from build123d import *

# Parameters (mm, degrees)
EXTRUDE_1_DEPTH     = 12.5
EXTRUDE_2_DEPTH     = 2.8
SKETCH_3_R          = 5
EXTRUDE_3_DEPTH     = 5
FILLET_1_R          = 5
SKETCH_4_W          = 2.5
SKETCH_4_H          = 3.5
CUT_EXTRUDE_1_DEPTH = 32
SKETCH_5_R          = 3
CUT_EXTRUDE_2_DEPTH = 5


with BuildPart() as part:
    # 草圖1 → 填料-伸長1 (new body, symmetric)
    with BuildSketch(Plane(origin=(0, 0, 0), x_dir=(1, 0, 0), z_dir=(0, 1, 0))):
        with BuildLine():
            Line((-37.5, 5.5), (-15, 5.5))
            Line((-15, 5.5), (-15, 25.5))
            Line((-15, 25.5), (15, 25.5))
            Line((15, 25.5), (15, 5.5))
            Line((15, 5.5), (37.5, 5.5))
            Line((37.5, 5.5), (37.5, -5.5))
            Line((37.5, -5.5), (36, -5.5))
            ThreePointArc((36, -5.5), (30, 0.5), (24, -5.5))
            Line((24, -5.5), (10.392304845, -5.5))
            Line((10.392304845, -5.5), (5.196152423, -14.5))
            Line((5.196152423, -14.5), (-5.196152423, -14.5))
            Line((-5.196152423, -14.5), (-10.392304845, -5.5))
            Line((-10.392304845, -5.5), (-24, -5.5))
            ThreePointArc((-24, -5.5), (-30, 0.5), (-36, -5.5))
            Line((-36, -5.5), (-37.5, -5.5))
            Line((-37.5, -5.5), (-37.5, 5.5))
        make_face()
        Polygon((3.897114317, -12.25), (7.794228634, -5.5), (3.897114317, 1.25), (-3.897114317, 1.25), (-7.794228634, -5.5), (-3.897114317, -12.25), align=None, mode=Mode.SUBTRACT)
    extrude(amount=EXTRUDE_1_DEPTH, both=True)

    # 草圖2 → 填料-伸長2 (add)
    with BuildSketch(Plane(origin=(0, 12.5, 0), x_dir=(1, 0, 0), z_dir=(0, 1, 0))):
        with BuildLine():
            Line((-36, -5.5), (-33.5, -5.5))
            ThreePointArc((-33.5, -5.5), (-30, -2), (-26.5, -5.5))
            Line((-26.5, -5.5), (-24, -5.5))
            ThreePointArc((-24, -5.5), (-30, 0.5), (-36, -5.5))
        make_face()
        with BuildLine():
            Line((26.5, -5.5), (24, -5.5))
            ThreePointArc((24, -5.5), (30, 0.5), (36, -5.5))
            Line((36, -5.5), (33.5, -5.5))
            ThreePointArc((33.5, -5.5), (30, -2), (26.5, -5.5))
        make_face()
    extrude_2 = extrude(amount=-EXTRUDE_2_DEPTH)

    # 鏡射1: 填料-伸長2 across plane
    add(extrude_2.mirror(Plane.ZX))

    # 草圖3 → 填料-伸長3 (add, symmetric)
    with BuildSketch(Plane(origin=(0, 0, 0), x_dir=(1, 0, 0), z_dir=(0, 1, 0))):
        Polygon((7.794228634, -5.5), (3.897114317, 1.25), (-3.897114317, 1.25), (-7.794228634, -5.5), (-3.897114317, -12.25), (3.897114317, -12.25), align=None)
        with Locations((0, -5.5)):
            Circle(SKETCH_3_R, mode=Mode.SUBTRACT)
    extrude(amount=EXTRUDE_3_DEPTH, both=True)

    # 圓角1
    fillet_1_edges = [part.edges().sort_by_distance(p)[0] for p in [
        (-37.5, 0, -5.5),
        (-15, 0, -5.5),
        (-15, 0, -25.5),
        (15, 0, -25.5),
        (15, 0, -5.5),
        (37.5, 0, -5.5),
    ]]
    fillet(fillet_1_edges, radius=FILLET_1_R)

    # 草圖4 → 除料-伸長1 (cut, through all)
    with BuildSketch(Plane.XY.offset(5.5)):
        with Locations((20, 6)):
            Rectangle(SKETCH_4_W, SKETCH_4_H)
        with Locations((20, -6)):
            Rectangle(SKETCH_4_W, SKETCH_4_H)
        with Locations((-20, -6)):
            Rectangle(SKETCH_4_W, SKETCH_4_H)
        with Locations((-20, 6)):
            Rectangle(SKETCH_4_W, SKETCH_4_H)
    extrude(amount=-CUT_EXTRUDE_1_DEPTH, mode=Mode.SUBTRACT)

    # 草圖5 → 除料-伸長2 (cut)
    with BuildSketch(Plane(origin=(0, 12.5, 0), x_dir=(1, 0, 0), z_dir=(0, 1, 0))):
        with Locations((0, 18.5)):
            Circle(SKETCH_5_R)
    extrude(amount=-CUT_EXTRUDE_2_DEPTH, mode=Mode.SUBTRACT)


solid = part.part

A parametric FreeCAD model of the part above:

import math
import FreeCAD as App
import Part
import Sketcher
from FreeCAD import Vector
Q = App.Units.Quantity


def edges_at(feature, points):
    """Names of the edges that pass closest to the given points."""
    edges = feature.Shape.Edges
    near = lambda p: min(range(len(edges)), key=lambda i: edges[i].distToShape(Part.Vertex(*p))[0])
    return sorted({f"Edge{near(p) + 1}" for p in points})


def add_polygon(sketch, points):
    """Adds a closed chain of lines whose ends are joined by coincident constraints."""
    first, n = sketch.GeometryCount, len(points)
    for a, b in zip(points, points[1:] + points[:1]):
        sketch.addGeometry(Part.LineSegment(App.Vector(*a, 0), App.Vector(*b, 0)), False)
    for i in range(n):
        sketch.addConstraint(Sketcher.Constraint("Coincident", first + i, 2, first + (i + 1) % n, 1))

doc = App.newDocument("Part")
body = doc.addObject("PartDesign::Body", "Body")

# Sketch on XZ plane
sketch1 = body.newObject("Sketcher::SketchObject", "Sketch")
sketch1.AttachmentSupport = (doc.getObject("XZ_Plane"), [""])
sketch1.MapMode = "FlatFace"
sketch1.addGeometry(Part.LineSegment(Vector(-15, -5.5, 0), Vector(-37.5, -5.5, 0)), False)  # 0
sketch1.addGeometry(Part.LineSegment(Vector(-37.5, -5.5, 0), Vector(-37.5, 5.5, 0)), False)  # 1
sketch1.addGeometry(Part.LineSegment(Vector(-37.5, 5.5, 0), Vector(-36, 5.5, 0)), False)  # 2
sketch1.addGeometry(Part.ArcOfCircle(Part.Circle(Vector(-30, 5.5, 0), Vector(0, 0, 1), 6), math.radians(180), math.radians(360)), False)  # 3
sketch1.addGeometry(Part.LineSegment(Vector(-24, 5.5, 0), Vector(-10.4, 5.5, 0)), False)  # 4
sketch1.addGeometry(Part.LineSegment(Vector(-10.4, 5.5, 0), Vector(-5.2, 14.5, 0)), False)  # 5
sketch1.addGeometry(Part.LineSegment(Vector(-5.2, 14.5, 0), Vector(5.2, 14.5, 0)), False)  # 6
sketch1.addGeometry(Part.LineSegment(Vector(5.2, 14.5, 0), Vector(10.4, 5.5, 0)), False)  # 7
sketch1.addGeometry(Part.LineSegment(Vector(10.4, 5.5, 0), Vector(24, 5.5, 0)), False)  # 8
sketch1.addGeometry(Part.ArcOfCircle(Part.Circle(Vector(30, 5.5, 0), Vector(0, 0, 1), 6), math.radians(180), math.radians(360)), False)  # 9
sketch1.addGeometry(Part.LineSegment(Vector(36, 5.5, 0), Vector(37.5, 5.5, 0)), False)  # 10
sketch1.addGeometry(Part.LineSegment(Vector(37.5, 5.5, 0), Vector(37.5, -5.5, 0)), False)  # 11
sketch1.addGeometry(Part.LineSegment(Vector(37.5, -5.5, 0), Vector(15, -5.5, 0)), False)  # 12
sketch1.addGeometry(Part.LineSegment(Vector(15, -5.5, 0), Vector(15, -25.5, 0)), False)  # 13
sketch1.addGeometry(Part.LineSegment(Vector(15, -25.5, 0), Vector(-15, -25.5, 0)), False)  # 14
sketch1.addGeometry(Part.LineSegment(Vector(-15, -25.5, 0), Vector(-15, -5.5, 0)), False)  # 15
add_polygon(sketch1, [(3.9, 12.2), (-3.9, 12.2), (-7.8, 5.5), (-3.9, -1.2), (3.9, -1.2), (7.8, 5.5)])  # lines 16-21
sketch1.addConstraint([
    Sketcher.Constraint("Coincident", 0, 2, 1, 1),
    Sketcher.Constraint("Coincident", 1, 2, 2, 1),
    Sketcher.Constraint("Coincident", 2, 2, 3, 1),
    Sketcher.Constraint("Coincident", 3, 2, 4, 1),
    Sketcher.Constraint("Coincident", 4, 2, 5, 1),
    Sketcher.Constraint("Coincident", 5, 2, 6, 1),
    Sketcher.Constraint("Coincident", 6, 2, 7, 1),
    Sketcher.Constraint("Coincident", 7, 2, 8, 1),
    Sketcher.Constraint("Coincident", 8, 2, 9, 1),
    Sketcher.Constraint("Coincident", 9, 2, 10, 1),
    Sketcher.Constraint("Coincident", 10, 2, 11, 1),
    Sketcher.Constraint("Coincident", 11, 2, 12, 1),
    Sketcher.Constraint("Coincident", 12, 2, 13, 1),
    Sketcher.Constraint("Coincident", 13, 2, 14, 1),
    Sketcher.Constraint("Coincident", 14, 2, 15, 1),
    Sketcher.Constraint("Coincident", 15, 2, 0, 1),
    Sketcher.Constraint("Horizontal", 0),
    Sketcher.Constraint("Vertical", 1),
    Sketcher.Constraint("Horizontal", 2),
    Sketcher.Constraint("Horizontal", 4),
    Sketcher.Constraint("Horizontal", 6),
    Sketcher.Constraint("Horizontal", 8),
    Sketcher.Constraint("Horizontal", 10),
    Sketcher.Constraint("Vertical", 11),
    Sketcher.Constraint("Horizontal", 12),
    Sketcher.Constraint("Vertical", 13),
    Sketcher.Constraint("Horizontal", 14),
    Sketcher.Constraint("Vertical", 15),
    Sketcher.Constraint("Horizontal", 16),
    Sketcher.Constraint("Horizontal", 19),
    Sketcher.Constraint("Equal", 3, 9),
    Sketcher.Constraint("Symmetric", 0, 2, 10, 2, -1, 1),
    Sketcher.Constraint("Symmetric", 3, 3, 9, 3, -2),
    Sketcher.Constraint("Symmetric", 4, 2, 7, 2, -2),
    Sketcher.Constraint("Symmetric", 12, 2, 15, 2, -2),
    Sketcher.Constraint("Symmetric", 17, 2, 20, 2, -2),
    Sketcher.Constraint("Parallel", 5, 17),
    Sketcher.Constraint("Parallel", 7, 18),
    Sketcher.Constraint("Parallel", 17, 20),
    Sketcher.Constraint("Parallel", 18, 21),
    Sketcher.Constraint("Horizontal", 9, 3, 1, 2),
    Sketcher.Constraint("Horizontal", 2, 2, 3, 2),
    Sketcher.Constraint("Horizontal", 8, 2, 9, 2),
    Sketcher.Constraint("Horizontal", 10, 2, 17, 2),
    Sketcher.Constraint("Vertical", 16, 2, 18, 2),
    Sketcher.Constraint("Vertical", 19, 2, 21, 2),
    Sketcher.Constraint("Radius", 3, 6.0),
    Sketcher.Constraint("DistanceX", 14, 2, 14, 1, 30.0),
    Sketcher.Constraint("DistanceY", 1, 1, 1, 2, 11.0),
    Sketcher.Constraint("DistanceY", 13, 2, 13, 1, 20.0),
    Sketcher.Constraint("Angle", 5, Q("60 deg")),
    Sketcher.Constraint("DistanceX", 0, 2, 0, 1, 22.5),
    Sketcher.Constraint("DistanceX", 2, 1, 2, 2, 1.5),
    Sketcher.Constraint("DistanceY", 4, 2, 5, 2, 9.0),
    Sketcher.Constraint("DistanceY", 18, 2, 16, 2, 13.5),
    Sketcher.Constraint("DistanceX", 16, 2, 16, 1, 7.794229),
    Sketcher.Constraint("DistanceX", 4, 1, 4, 2, 13.607695),
])
pad1 = body.newObject("PartDesign::Pad", "Pad")
pad1.Profile = sketch1
pad1.Length = 25
pad1.Midplane = True

# Sketch on XZ plane
sketch2 = body.newObject("Sketcher::SketchObject", "Sketch001")
sketch2.AttachmentSupport = (doc.getObject("XZ_Plane"), [""])
sketch2.MapMode = "FlatFace"
sketch2.AttachmentOffset = App.Placement(Vector(0, 0, -12.5), App.Rotation())
sketch2.addGeometry([
    Part.LineSegment(Vector(-36, 5.5, 0), Vector(-33.5, 5.5, 0)),  # 0
    Part.ArcOfCircle(Part.Circle(Vector(-30, 5.5, 0), Vector(0, 0, 1), 3.5), math.radians(180), math.radians(360)),  # 1
    Part.LineSegment(Vector(-26.5, 5.5, 0), Vector(-24, 5.5, 0)),  # 2
    Part.ArcOfCircle(Part.Circle(Vector(-30, 5.5, 0), Vector(0, 0, 1), 6), math.radians(180), math.radians(360)),  # 3
    Part.LineSegment(Vector(24, 5.5, 0), Vector(26.5, 5.5, 0)),  # 4
    Part.ArcOfCircle(Part.Circle(Vector(30, 5.5, 0), Vector(0, 0, 1), 3.5), math.radians(180), math.radians(360)),  # 5
    Part.LineSegment(Vector(33.5, 5.5, 0), Vector(36, 5.5, 0)),  # 6
    Part.ArcOfCircle(Part.Circle(Vector(30, 5.5, 0), Vector(0, 0, 1), 6), math.radians(180), math.radians(360)),  # 7
], False)
sketch2.addConstraint([
    Sketcher.Constraint("Coincident", 0, 2, 1, 1),
    Sketcher.Constraint("Coincident", 1, 2, 2, 1),
    Sketcher.Constraint("Coincident", 2, 2, 3, 2),
    Sketcher.Constraint("Coincident", 3, 1, 0, 1),
    Sketcher.Constraint("Coincident", 4, 2, 5, 1),
    Sketcher.Constraint("Coincident", 5, 2, 6, 1),
    Sketcher.Constraint("Coincident", 6, 2, 7, 2),
    Sketcher.Constraint("Coincident", 7, 1, 4, 1),
    Sketcher.Constraint("Horizontal", 0),
    Sketcher.Constraint("Horizontal", 2),
    Sketcher.Constraint("Horizontal", 4),
    Sketcher.Constraint("Horizontal", 6),
    Sketcher.Constraint("Coincident", 3, 3, 1, 3),
    Sketcher.Constraint("Coincident", 7, 3, 5, 3),
    Sketcher.Constraint("Equal", 1, 5),
    Sketcher.Constraint("Equal", 3, 7),
    Sketcher.Constraint("Symmetric", 1, 3, 5, 3, -2),
    Sketcher.Constraint("Horizontal", 7, 3, 0, 2),
    Sketcher.Constraint("Horizontal", 0, 2, 1, 2),
    Sketcher.Constraint("Horizontal", 3, 1, 4, 2),
    Sketcher.Constraint("Horizontal", 4, 2, 5, 2),
    Sketcher.Constraint("Radius", 3, 6.0),
    Sketcher.Constraint("Radius", 1, 3.5),
    Sketcher.Constraint("DistanceX", 1, 3, -1, 1, 30.0),
    Sketcher.Constraint("DistanceY", -1, 1, 1, 3, 5.5),
])
pad2 = body.newObject("PartDesign::Pad", "Pad001")
pad2.Profile = sketch2
pad2.Length = 2.8
doc.recompute()

mirrored = body.newObject("PartDesign::Mirrored", "Mirrored")
mirrored.Originals = [pad2]
mirrored.MirrorPlane = (doc.getObject("XZ_Plane"), [""])
body.Tip = mirrored

# Sketch on XZ plane
sketch3 = body.newObject("Sketcher::SketchObject", "Sketch002")
sketch3.AttachmentSupport = (doc.getObject("XZ_Plane"), [""])
sketch3.MapMode = "FlatFace"
add_polygon(sketch3, [(8, 6), (4, -1), (-4, -1), (-8, 6), (-4, 12), (4, 12)])  # lines 0-5
sketch3.addGeometry(Part.Circle(Vector(0, 6, 0), Vector(0, 0, 1), 5), False)  # 6
sketch3.addConstraint([
    Sketcher.Constraint("Horizontal", 1),
    Sketcher.Constraint("Horizontal", 4),
    Sketcher.Constraint("Symmetric", 2, 2, 5, 2, -2),
    Sketcher.Constraint("PointOnObject", 6, 3, -2),
    Sketcher.Constraint("Parallel", 0, 3),
    Sketcher.Constraint("Parallel", 2, 5),
    Sketcher.Constraint("Horizontal", 6, 3, 2, 2),
    Sketcher.Constraint("Vertical", 1, 2, 3, 2),
    Sketcher.Constraint("Vertical", 0, 2, 4, 2),
    Sketcher.Constraint("Diameter", 6, 10.0),
    Sketcher.Constraint("Angle", 0, Q("-120 deg")),
    Sketcher.Constraint("DistanceY", -1, 1, 6, 3, 5.5),
    Sketcher.Constraint("DistanceY", 1, 2, 3, 2, 13.5),
    Sketcher.Constraint("DistanceX", 1, 2, 1, 1, 7.794229),
])
pad3 = body.newObject("PartDesign::Pad", "Pad002")
pad3.Profile = sketch3
pad3.Length = 10
pad3.Midplane = True
doc.recompute()

fillet = body.newObject("PartDesign::Fillet", "Fillet")
fillet.Base = (pad3, edges_at(pad3, [
    (-37.5, 0, -5.5),
    (-15, 0, -5.5),
    (-15, 0, -25.5),
    (15, 0, -25.5),
    (15, 0, -5.5),
    (37.5, 0, -5.5),
]))
fillet.Radius = 5

# Sketch on XY plane
sketch4 = body.newObject("Sketcher::SketchObject", "Sketch003")
sketch4.AttachmentSupport = (doc.getObject("XY_Plane"), [""])
sketch4.MapMode = "FlatFace"
sketch4.AttachmentOffset = App.Placement(Vector(0, 0, 5.5), App.Rotation())
add_polygon(sketch4, [(18.8, 7.8), (18.8, 4.2), (21.2, 4.2), (21.2, 7.8)])  # lines 0-3
add_polygon(sketch4, [(18.8, -4.2), (18.8, -7.8), (21.2, -7.8), (21.2, -4.2)])  # lines 4-7
add_polygon(sketch4, [(-21.2, -4.2), (-21.2, -7.8), (-18.8, -7.8), (-18.8, -4.2)])  # lines 8-11
add_polygon(sketch4, [(-21.2, 7.8), (-21.2, 4.2), (-18.8, 4.2), (-18.8, 7.8)])  # lines 12-15
sketch4.addConstraint([
    Sketcher.Constraint("Vertical", 0),
    Sketcher.Constraint("Horizontal", 1),
    Sketcher.Constraint("Vertical", 2),
    Sketcher.Constraint("Horizontal", 3),
    Sketcher.Constraint("Vertical", 4),
    Sketcher.Constraint("Horizontal", 5),
    Sketcher.Constraint("Vertical", 6),
    Sketcher.Constraint("Horizontal", 7),
    Sketcher.Constraint("Vertical", 8),
    Sketcher.Constraint("Horizontal", 9),
    Sketcher.Constraint("Vertical", 10),
    Sketcher.Constraint("Horizontal", 11),
    Sketcher.Constraint("Vertical", 12),
    Sketcher.Constraint("Horizontal", 13),
    Sketcher.Constraint("Vertical", 14),
    Sketcher.Constraint("Horizontal", 15),
    Sketcher.Constraint("Symmetric", 2, 2, 8, 2, -1, 1),
    Sketcher.Constraint("Symmetric", 0, 2, 10, 2, -1, 1),
    Sketcher.Constraint("Symmetric", 6, 2, 12, 2, -1, 1),
    Sketcher.Constraint("Symmetric", 4, 2, 14, 2, -1, 1),
    Sketcher.Constraint("Symmetric", 5, 2, 8, 2, -2),
    Sketcher.Constraint("Symmetric", 7, 2, 10, 2, -2),
    Sketcher.Constraint("DistanceX", 1, 1, 1, 2, 2.5),
    Sketcher.Constraint("DistanceY", 0, 2, 0, 1, 3.5),
    Sketcher.Constraint("DistanceY", 4, 2, 0, 2, 12.0),
    Sketcher.Constraint("DistanceX", 8, 2, 4, 2, 40.0),
])
pocket1 = body.newObject("PartDesign::Pocket", "Pocket")
pocket1.Profile = sketch4
pocket1.Type = "ThroughAll"

# Sketch on XZ plane
sketch5 = body.newObject("Sketcher::SketchObject", "Sketch004")
sketch5.AttachmentSupport = (doc.getObject("XZ_Plane"), [""])
sketch5.MapMode = "FlatFace"
sketch5.AttachmentOffset = App.Placement(Vector(0, 0, -12.5), App.Rotation())
sketch5.addGeometry(Part.Circle(Vector(0, -18.5, 0), Vector(0, 0, 1), 3), False)
sketch5.addConstraint([
    Sketcher.Constraint("PointOnObject", 0, 3, -2),
    Sketcher.Constraint("Diameter", 0, 6.0),
    Sketcher.Constraint("DistanceY", 0, 3, -1, 1, 18.5),
])
pocket2 = body.newObject("PartDesign::Pocket", "Pocket001")
pocket2.Profile = sketch5
pocket2.Length = 5
pocket2.Reversed = True

doc.recompute()
